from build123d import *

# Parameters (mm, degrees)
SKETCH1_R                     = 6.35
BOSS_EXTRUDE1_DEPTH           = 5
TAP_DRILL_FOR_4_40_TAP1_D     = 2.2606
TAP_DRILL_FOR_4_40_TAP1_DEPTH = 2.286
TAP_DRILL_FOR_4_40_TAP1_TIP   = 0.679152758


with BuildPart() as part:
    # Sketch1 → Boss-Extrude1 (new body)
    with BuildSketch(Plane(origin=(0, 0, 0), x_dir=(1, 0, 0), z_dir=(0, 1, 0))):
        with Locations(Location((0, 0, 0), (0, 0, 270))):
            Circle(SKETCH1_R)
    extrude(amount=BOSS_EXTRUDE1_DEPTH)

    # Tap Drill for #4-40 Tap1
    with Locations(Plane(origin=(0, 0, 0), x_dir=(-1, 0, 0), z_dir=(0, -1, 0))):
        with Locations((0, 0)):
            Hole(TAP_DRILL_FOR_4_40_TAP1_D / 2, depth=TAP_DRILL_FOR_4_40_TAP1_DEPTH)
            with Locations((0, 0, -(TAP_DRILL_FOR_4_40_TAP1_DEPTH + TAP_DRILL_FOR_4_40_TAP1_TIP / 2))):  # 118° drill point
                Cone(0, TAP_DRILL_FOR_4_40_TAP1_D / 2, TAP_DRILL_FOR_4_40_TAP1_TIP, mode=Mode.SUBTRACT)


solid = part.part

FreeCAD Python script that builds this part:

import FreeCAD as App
import Part
import Sketcher
Q = App.Units.Quantity

doc = App.newDocument("Part")
body = doc.addObject("PartDesign::Body", "Body")

sketch1 = body.newObject("Sketcher::SketchObject", "Sketch")
sketch1.AttachmentSupport = (doc.getObject("XZ_Plane"), [""])
sketch1.MapMode = "FlatFace"
sketch1.addGeometry(Part.Circle(App.Vector(0, 0, 0), App.Vector(0, 0, 1), 6), False)
sketch1.addConstraint(Sketcher.Constraint("Coincident", 0, 3, -1, 1))
sketch1.addConstraint(Sketcher.Constraint("Diameter", 0, Q("0.5 in")))
pad1 = body.newObject("PartDesign::Pad", "Pad")
pad1.Profile = sketch1
pad1.Length = 5
pad1.Reversed = True

sketch2 = body.newObject("Sketcher::SketchObject", "Sketch001")
sketch2.AttachmentSupport = (doc.getObject("XZ_Plane"), [""])
sketch2.MapMode = "FlatFace"
sketch2.addGeometry(Part.Circle(App.Vector(0, 0, 0), App.Vector(0, 0, 1), 1.1), False)
sketch2.addConstraint(Sketcher.Constraint("Coincident", 0, 3, -1, 1))
sketch2.addConstraint(Sketcher.Constraint("Diameter", 0, Q("0.089 in")))
doc.recompute()
hole = body.newObject("PartDesign::Hole", "Hole")
hole.Profile = sketch2
hole.ThreadType = "None"
hole.Diameter = Q("0.089 in")
hole.DepthType = "Dimension"
hole.Depth = Q("0.09 in")
hole.DrillPoint = "Angled"
hole.DrillPointAngle = 118

doc.recompute()
